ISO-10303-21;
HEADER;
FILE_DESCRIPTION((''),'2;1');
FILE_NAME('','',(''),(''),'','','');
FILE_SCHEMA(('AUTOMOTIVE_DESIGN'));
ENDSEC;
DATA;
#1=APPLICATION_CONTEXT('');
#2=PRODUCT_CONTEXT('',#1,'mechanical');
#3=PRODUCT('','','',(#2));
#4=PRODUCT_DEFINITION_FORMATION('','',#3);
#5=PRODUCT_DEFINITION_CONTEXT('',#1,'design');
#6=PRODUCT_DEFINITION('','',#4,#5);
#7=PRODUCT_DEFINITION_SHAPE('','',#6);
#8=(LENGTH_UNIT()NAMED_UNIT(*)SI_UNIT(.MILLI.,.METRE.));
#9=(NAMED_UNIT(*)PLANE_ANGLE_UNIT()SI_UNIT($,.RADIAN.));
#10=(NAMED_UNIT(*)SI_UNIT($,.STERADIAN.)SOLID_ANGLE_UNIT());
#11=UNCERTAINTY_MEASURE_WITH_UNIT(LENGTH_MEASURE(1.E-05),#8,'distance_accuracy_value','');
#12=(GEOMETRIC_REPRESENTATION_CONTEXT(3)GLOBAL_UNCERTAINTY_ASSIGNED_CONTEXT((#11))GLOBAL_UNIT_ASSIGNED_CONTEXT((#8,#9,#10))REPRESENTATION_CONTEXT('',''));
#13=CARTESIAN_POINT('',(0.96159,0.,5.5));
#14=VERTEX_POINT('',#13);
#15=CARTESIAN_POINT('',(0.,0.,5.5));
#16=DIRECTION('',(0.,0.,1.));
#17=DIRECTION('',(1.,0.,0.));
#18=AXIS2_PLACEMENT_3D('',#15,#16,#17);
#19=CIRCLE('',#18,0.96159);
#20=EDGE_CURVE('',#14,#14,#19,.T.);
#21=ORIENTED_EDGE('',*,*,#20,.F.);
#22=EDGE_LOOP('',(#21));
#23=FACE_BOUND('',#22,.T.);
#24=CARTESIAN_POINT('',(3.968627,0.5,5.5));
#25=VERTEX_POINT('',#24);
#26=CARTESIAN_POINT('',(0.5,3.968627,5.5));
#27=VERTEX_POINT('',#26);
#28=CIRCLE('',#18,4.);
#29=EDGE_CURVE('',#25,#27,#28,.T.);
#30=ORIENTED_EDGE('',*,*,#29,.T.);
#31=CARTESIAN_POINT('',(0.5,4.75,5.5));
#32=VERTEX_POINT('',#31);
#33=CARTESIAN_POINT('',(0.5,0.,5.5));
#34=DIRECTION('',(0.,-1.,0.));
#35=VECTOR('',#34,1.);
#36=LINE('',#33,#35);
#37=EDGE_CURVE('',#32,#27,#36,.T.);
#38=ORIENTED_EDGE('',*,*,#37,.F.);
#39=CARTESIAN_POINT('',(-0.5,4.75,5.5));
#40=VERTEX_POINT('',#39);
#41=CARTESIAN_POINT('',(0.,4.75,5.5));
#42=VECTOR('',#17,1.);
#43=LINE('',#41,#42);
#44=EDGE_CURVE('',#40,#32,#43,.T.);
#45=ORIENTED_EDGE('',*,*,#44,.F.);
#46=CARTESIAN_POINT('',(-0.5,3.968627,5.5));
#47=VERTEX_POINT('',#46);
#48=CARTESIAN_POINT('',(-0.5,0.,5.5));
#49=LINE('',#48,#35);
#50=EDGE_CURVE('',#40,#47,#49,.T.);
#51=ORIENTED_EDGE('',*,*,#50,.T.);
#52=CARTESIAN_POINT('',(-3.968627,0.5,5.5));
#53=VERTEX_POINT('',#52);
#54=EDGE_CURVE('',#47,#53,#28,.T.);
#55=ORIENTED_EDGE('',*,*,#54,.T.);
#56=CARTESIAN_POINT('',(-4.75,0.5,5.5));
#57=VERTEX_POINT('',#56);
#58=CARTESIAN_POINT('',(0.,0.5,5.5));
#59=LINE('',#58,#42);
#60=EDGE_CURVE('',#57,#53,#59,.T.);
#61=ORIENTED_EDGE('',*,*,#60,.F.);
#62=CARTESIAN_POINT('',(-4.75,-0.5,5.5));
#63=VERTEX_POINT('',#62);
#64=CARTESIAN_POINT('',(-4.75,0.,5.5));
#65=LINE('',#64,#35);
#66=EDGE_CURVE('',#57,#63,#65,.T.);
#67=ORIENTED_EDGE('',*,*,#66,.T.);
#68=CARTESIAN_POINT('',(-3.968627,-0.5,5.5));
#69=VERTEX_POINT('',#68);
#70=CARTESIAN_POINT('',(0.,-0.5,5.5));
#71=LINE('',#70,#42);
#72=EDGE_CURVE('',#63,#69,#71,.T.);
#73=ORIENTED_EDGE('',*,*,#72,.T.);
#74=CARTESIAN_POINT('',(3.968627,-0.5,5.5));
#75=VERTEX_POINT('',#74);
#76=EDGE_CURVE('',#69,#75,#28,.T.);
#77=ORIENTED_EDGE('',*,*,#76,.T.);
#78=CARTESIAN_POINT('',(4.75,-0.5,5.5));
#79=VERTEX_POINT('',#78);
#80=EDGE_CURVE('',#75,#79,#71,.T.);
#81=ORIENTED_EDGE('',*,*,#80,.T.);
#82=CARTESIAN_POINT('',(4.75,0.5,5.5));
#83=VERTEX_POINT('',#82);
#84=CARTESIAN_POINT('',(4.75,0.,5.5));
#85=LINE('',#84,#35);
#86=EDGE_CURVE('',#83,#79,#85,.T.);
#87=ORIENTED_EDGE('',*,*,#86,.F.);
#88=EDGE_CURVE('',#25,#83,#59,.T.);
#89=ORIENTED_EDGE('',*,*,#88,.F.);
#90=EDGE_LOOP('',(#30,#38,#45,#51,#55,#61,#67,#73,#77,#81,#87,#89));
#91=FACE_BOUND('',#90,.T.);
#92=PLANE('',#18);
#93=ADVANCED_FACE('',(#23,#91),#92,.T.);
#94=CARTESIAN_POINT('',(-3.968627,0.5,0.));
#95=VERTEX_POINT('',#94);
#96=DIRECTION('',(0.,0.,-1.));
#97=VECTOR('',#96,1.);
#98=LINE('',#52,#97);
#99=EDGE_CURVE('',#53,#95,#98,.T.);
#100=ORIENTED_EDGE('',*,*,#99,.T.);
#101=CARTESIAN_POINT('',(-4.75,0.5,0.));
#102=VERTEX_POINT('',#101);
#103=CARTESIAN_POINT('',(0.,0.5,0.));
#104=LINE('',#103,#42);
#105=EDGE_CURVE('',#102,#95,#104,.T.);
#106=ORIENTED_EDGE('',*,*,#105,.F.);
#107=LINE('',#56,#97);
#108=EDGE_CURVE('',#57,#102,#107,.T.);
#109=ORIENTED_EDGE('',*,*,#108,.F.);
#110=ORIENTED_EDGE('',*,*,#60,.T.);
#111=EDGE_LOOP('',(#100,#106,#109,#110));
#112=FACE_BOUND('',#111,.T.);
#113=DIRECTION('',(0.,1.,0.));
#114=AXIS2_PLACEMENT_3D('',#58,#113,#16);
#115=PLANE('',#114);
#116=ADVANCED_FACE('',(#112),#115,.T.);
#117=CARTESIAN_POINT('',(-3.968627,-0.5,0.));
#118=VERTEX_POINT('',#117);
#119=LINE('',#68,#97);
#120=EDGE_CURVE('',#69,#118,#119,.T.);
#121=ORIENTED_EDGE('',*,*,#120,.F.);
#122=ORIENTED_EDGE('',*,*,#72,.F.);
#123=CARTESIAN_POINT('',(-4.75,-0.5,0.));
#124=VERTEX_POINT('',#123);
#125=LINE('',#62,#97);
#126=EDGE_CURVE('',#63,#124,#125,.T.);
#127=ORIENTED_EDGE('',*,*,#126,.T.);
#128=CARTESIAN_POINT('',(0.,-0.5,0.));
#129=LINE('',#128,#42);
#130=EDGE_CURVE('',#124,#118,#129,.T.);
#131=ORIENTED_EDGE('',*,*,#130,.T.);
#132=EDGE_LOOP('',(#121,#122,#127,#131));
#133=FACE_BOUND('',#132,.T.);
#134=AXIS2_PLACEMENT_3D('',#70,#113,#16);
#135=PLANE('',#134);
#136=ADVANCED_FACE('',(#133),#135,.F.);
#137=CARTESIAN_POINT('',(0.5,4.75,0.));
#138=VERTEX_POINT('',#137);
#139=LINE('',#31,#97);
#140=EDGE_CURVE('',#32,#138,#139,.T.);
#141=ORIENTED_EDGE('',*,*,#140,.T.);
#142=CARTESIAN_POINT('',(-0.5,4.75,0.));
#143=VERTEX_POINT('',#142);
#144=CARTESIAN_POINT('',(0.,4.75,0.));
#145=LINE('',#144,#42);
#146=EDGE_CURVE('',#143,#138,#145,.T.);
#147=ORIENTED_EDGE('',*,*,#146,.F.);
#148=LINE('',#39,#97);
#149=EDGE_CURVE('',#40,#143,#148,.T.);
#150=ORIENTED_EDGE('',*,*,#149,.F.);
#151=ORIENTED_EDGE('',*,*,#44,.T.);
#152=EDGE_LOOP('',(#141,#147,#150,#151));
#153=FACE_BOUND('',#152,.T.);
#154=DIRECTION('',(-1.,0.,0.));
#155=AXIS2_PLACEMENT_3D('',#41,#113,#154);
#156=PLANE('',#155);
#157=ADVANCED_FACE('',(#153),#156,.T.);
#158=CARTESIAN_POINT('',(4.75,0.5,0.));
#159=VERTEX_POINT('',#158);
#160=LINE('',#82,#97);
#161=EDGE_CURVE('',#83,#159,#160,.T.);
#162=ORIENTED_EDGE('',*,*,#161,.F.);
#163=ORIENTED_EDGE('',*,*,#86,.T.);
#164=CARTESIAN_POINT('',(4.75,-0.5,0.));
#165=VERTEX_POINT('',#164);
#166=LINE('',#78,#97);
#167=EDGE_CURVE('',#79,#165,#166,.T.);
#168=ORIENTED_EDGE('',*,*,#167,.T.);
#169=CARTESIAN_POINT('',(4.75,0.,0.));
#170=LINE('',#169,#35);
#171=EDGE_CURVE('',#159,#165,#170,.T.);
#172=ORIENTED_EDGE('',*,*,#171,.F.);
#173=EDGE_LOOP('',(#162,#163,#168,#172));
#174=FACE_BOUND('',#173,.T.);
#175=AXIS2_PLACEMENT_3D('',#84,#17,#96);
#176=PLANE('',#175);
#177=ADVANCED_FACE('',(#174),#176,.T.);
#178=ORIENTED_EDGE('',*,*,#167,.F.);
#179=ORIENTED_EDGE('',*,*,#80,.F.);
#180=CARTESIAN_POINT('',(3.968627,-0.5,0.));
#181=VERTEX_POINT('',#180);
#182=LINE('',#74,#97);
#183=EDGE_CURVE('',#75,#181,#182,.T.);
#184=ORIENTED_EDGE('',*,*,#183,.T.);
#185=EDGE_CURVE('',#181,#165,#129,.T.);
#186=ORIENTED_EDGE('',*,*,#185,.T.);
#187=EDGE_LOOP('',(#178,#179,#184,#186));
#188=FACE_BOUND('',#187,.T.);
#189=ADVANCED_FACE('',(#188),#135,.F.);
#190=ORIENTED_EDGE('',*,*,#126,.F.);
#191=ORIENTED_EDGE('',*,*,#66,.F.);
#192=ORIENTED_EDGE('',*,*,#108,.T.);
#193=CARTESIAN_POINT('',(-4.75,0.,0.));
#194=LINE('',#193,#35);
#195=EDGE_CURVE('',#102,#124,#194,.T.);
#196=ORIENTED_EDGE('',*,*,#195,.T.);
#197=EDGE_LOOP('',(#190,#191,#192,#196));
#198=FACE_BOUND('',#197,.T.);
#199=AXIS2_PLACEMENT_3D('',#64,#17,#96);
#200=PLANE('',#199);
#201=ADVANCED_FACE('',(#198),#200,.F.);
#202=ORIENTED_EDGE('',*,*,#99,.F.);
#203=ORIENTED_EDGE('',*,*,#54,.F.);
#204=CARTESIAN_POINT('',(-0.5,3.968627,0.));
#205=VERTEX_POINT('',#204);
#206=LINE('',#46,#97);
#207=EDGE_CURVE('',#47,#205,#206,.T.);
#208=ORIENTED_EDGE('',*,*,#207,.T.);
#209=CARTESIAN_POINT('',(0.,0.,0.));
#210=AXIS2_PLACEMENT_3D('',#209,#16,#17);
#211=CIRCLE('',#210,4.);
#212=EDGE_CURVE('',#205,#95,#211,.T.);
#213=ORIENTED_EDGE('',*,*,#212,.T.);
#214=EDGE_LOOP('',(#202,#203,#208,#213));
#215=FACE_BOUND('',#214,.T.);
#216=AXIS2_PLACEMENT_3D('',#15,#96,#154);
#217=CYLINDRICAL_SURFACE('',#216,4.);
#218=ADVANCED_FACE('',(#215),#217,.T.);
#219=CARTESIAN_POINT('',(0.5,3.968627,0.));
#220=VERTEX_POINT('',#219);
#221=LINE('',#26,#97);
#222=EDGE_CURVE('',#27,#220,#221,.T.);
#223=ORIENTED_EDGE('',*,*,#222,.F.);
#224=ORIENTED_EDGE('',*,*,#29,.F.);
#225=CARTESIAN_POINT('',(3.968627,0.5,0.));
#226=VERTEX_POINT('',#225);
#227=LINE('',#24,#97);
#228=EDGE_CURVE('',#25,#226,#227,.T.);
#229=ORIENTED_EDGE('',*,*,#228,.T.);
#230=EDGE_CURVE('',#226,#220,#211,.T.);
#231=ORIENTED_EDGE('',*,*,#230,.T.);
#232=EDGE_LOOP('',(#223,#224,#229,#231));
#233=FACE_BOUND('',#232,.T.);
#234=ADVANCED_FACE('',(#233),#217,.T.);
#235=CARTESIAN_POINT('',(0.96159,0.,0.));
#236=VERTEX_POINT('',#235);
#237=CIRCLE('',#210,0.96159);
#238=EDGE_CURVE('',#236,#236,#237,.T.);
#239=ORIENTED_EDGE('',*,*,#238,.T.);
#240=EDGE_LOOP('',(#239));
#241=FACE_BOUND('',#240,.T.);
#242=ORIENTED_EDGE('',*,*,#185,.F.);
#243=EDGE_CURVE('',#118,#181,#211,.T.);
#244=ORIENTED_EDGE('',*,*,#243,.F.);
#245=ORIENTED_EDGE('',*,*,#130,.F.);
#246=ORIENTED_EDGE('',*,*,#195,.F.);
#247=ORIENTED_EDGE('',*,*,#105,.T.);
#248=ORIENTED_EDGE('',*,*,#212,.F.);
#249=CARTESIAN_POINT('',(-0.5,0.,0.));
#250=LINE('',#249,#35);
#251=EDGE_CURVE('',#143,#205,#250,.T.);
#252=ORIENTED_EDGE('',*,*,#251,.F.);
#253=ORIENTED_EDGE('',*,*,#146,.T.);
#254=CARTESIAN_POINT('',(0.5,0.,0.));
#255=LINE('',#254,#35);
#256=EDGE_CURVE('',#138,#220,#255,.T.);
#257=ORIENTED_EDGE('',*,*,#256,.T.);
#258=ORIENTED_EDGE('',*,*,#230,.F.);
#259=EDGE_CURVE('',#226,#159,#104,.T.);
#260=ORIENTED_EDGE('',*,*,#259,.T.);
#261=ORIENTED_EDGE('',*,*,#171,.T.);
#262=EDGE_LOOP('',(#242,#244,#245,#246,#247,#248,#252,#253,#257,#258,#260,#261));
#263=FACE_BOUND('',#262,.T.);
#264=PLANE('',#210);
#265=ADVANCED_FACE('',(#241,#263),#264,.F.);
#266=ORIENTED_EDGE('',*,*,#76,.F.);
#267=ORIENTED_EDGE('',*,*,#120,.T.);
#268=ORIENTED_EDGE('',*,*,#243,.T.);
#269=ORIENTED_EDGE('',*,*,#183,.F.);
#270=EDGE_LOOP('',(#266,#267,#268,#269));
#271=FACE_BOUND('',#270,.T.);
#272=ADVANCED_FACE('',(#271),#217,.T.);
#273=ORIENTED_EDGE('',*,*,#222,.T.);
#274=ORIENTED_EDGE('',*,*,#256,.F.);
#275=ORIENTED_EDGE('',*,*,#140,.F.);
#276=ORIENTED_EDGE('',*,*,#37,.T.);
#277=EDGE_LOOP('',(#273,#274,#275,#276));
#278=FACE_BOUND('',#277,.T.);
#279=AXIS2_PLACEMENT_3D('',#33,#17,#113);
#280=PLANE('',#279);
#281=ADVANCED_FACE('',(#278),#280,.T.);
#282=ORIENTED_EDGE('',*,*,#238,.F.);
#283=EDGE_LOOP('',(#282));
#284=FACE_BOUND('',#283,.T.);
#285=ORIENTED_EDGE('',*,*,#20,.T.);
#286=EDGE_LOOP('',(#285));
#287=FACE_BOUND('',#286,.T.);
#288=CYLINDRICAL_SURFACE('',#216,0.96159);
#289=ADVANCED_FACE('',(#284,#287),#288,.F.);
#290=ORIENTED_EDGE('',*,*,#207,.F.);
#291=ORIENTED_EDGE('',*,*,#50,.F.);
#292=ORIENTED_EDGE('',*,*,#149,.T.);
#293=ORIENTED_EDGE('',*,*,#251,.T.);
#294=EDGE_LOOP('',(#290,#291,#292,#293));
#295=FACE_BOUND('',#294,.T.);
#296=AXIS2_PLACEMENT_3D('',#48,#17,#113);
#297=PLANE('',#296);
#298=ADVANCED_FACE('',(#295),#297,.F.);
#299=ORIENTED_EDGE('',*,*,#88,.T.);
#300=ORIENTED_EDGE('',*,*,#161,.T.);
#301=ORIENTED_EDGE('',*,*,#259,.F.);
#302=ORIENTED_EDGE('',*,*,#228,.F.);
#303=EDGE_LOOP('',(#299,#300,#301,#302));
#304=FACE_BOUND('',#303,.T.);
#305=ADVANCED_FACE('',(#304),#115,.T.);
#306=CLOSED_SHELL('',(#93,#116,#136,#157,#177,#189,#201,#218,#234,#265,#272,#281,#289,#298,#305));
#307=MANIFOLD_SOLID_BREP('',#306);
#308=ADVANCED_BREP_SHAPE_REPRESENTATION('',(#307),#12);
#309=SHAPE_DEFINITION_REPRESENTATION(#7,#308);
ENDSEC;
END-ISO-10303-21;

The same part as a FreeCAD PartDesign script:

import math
import FreeCAD as App
import Part
import Sketcher
Q = App.Units.Quantity

doc = App.newDocument("Part")
params = doc.addObject("Spreadsheet::Sheet", "Params")
for row, (alias, value) in enumerate([
    ("sketch1_radius", "4 mm"),
    ("sketch1_width", "1 mm"),
    ("pad1_length", "5.5 mm"),
], start=1):
    params.set(f"A{row}", alias)
    params.set(f"B{row}", "=" + value)
    params.setAlias(f"B{row}", alias)

body = doc.addObject("PartDesign::Body", "Body")

sketch1 = body.newObject("Sketcher::SketchObject", "Sketch")
sketch1.AttachmentSupport = (doc.getObject("XY_Plane"), [""])
sketch1.MapMode = "FlatFace"
sketch1.addGeometry(Part.ArcOfCircle(Part.Circle(App.Vector(0, 0, 0), App.Vector(0, 0, 1), 4), math.radians(-173), math.radians(-7)), False)
sketch1.addGeometry(Part.LineSegment(App.Vector(3.97, -0.5, 0), App.Vector(4.75, -0.5, 0)), False)
sketch1.addGeometry(Part.LineSegment(App.Vector(4.75, -0.5, 0), App.Vector(4.75, 0.5, 0)), False)
sketch1.addGeometry(Part.LineSegment(App.Vector(4.75, 0.5, 0), App.Vector(3.97, 0.5, 0)), False)
sketch1.addGeometry(Part.ArcOfCircle(Part.Circle(App.Vector(0, 0, 0), App.Vector(0, 0, 1), 4), math.radians(7), math.radians(83)), False)
sketch1.addGeometry(Part.LineSegment(App.Vector(0.5, 3.97, 0), App.Vector(0.5, 4.75, 0)), False)
sketch1.addGeometry(Part.LineSegment(App.Vector(0.5, 4.75, 0), App.Vector(-0.5, 4.75, 0)), False)
sketch1.addGeometry(Part.LineSegment(App.Vector(-0.5, 4.75, 0), App.Vector(-0.5, 3.97, 0)), False)
sketch1.addGeometry(Part.ArcOfCircle(Part.Circle(App.Vector(0, 0, 0), App.Vector(0, 0, 1), 4), math.radians(97), math.radians(173)), False)
sketch1.addGeometry(Part.LineSegment(App.Vector(-3.97, 0.5, 0), App.Vector(-4.75, 0.5, 0)), False)
sketch1.addGeometry(Part.LineSegment(App.Vector(-4.75, 0.5, 0), App.Vector(-4.75, -0.5, 0)), False)
sketch1.addGeometry(Part.LineSegment(App.Vector(-4.75, -0.5, 0), App.Vector(-3.97, -0.5, 0)), False)
sketch1.addGeometry(Part.ArcOfCircle(Part.Circle(App.Vector(0, 0, 0), App.Vector(0, 0, 1), 0.96), math.radians(31), math.radians(59)), False)
sketch1.addGeometry(Part.ArcOfCircle(Part.Circle(App.Vector(0, 0, 0), App.Vector(0, 0, 1), 0.96), math.radians(0), math.radians(31)), False)
sketch1.addGeometry(Part.ArcOfCircle(Part.Circle(App.Vector(0, 0, 0), App.Vector(0, 0, 1), 0.96), math.radians(-31), math.radians(0)), False)
sketch1.addGeometry(Part.ArcOfCircle(Part.Circle(App.Vector(0, 0, 0), App.Vector(0, 0, 1), 0.96), math.radians(-149), math.radians(-31)), False)
sketch1.addGeometry(Part.ArcOfCircle(Part.Circle(App.Vector(0, 0, 0), App.Vector(0, 0, 1), 0.96), math.radians(149), math.radians(211)), False)
sketch1.addGeometry(Part.ArcOfCircle(Part.Circle(App.Vector(0, 0, 0), App.Vector(0, 0, 1), 0.96), math.radians(121), math.radians(149)), False)
sketch1.addGeometry(Part.ArcOfCircle(Part.Circle(App.Vector(0, 0, 0), App.Vector(0, 0, 1), 0.96), math.radians(59), math.radians(121)), False)
sketch1.addConstraint(Sketcher.Constraint("Coincident", 0, 2, 1, 1))
sketch1.addConstraint(Sketcher.Constraint("Coincident", 1, 2, 2, 1))
sketch1.addConstraint(Sketcher.Constraint("Coincident", 2, 2, 3, 1))
sketch1.addConstraint(Sketcher.Constraint("Coincident", 3, 2, 4, 1))
sketch1.addConstraint(Sketcher.Constraint("Coincident", 4, 2, 5, 1))
sketch1.addConstraint(Sketcher.Constraint("Coincident", 5, 2, 6, 1))
sketch1.addConstraint(Sketcher.Constraint("Coincident", 6, 2, 7, 1))
sketch1.addConstraint(Sketcher.Constraint("Coincident", 7, 2, 8, 1))
sketch1.addConstraint(Sketcher.Constraint("Coincident", 8, 2, 9, 1))
sketch1.addConstraint(Sketcher.Constraint("Coincident", 9, 2, 10, 1))
sketch1.addConstraint(Sketcher.Constraint("Coincident", 10, 2, 11, 1))
sketch1.addConstraint(Sketcher.Constraint("Coincident", 11, 2, 0, 1))
sketch1.addConstraint(Sketcher.Constraint("Tangent", 12, 1, 13, 2))
sketch1.addConstraint(Sketcher.Constraint("Tangent", 13, 1, 14, 2))
sketch1.addConstraint(Sketcher.Constraint("Tangent", 14, 1, 15, 2))
sketch1.addConstraint(Sketcher.Constraint("Tangent", 15, 1, 16, 2))
sketch1.addConstraint(Sketcher.Constraint("Tangent", 16, 1, 17, 2))
sketch1.addConstraint(Sketcher.Constraint("Tangent", 17, 1, 18, 2))
sketch1.addConstraint(Sketcher.Constraint("Tangent", 18, 1, 12, 2))
sketch1.addConstraint(Sketcher.Constraint("Horizontal", 1))
sketch1.addConstraint(Sketcher.Constraint("Vertical", 2))
sketch1.addConstraint(Sketcher.Constraint("Horizontal", 3))
sketch1.addConstraint(Sketcher.Constraint("Vertical", 5))
sketch1.addConstraint(Sketcher.Constraint("Horizontal", 6))
sketch1.addConstraint(Sketcher.Constraint("Vertical", 7))
sketch1.addConstraint(Sketcher.Constraint("Horizontal", 9))
sketch1.addConstraint(Sketcher.Constraint("Vertical", 10))
sketch1.addConstraint(Sketcher.Constraint("Horizontal", 11))
sketch1.addConstraint(Sketcher.Constraint("Coincident", 0, 3, -1, 1))
sketch1.addConstraint(Sketcher.Constraint("Coincident", 4, 3, -1, 1))
sketch1.addConstraint(Sketcher.Constraint("Coincident", 8, 3, -1, 1))
sketch1.addConstraint(Sketcher.Constraint("Coincident", 12, 3, -1, 1))
sketch1.addConstraint(Sketcher.Constraint("Coincident", 14, 3, -1, 1))
sketch1.addConstraint(Sketcher.Constraint("Coincident", 16, 3, -1, 1))
sketch1.addConstraint(Sketcher.Constraint("Equal", 0, 4))
sketch1.addConstraint(Sketcher.Constraint("Equal", 4, 8))
sketch1.addConstraint(Sketcher.Constraint("Symmetric", 1, 2, 9, 2, -1, 1))
sketch1.addConstraint(Sketcher.Constraint("PointOnObject", 13, 1, -1))
sketch1.addConstraint(Sketcher.Constraint("Horizontal", 4, 2, 7, 2))
sketch1.addConstraint(Sketcher.Constraint("Horizontal", 3, 2, 8, 2))
sketch1.addConstraint(Sketcher.Constraint("Horizontal", 1, 2, 10, 2))
sketch1.addConstraint(Sketcher.Constraint("Horizontal", 9, 2, 12, 1))
sketch1.addConstraint(Sketcher.Constraint("Horizontal", 11, 2, 14, 1))
sketch1.addConstraint(Sketcher.Constraint("Horizontal", 14, 1, 15, 1))
sketch1.addConstraint(Sketcher.Constraint("Horizontal", 12, 1, 16, 1))
sketch1.addConstraint(Sketcher.Constraint("Horizontal", 17, 1, 18, 1))
sketch1.addConstraint(Sketcher.Constraint("Vertical", 7, 2, 17, 1))
sketch1.addConstraint(Sketcher.Constraint("Equal", 6, 2))
sketch1.addConstraint(Sketcher.Constraint("Equal", 11, 5))
sketch1.addConstraint(Sketcher.Constraint("Radius", 0, Q("4 mm")))
sketch1.addConstraint(Sketcher.Constraint("DistanceX", 6, 2, 6, 1, Q("1 mm")))
sketch1.addConstraint(Sketcher.Constraint("DistanceX", -1, 1, 1, 2, Q("4.75 mm")))
sketch1.addConstraint(Sketcher.Constraint("Radius", 12, Q("0.96159 mm")))
sketch1.setExpression("Constraints[49]", "Params.sketch1_radius")
sketch1.setExpression("Constraints[50]", "Params.sketch1_width")
pad1 = body.newObject("PartDesign::Pad", "Pad")
pad1.Profile = sketch1
pad1.setExpression("Length", "Params.pad1_length")

doc.recompute()
